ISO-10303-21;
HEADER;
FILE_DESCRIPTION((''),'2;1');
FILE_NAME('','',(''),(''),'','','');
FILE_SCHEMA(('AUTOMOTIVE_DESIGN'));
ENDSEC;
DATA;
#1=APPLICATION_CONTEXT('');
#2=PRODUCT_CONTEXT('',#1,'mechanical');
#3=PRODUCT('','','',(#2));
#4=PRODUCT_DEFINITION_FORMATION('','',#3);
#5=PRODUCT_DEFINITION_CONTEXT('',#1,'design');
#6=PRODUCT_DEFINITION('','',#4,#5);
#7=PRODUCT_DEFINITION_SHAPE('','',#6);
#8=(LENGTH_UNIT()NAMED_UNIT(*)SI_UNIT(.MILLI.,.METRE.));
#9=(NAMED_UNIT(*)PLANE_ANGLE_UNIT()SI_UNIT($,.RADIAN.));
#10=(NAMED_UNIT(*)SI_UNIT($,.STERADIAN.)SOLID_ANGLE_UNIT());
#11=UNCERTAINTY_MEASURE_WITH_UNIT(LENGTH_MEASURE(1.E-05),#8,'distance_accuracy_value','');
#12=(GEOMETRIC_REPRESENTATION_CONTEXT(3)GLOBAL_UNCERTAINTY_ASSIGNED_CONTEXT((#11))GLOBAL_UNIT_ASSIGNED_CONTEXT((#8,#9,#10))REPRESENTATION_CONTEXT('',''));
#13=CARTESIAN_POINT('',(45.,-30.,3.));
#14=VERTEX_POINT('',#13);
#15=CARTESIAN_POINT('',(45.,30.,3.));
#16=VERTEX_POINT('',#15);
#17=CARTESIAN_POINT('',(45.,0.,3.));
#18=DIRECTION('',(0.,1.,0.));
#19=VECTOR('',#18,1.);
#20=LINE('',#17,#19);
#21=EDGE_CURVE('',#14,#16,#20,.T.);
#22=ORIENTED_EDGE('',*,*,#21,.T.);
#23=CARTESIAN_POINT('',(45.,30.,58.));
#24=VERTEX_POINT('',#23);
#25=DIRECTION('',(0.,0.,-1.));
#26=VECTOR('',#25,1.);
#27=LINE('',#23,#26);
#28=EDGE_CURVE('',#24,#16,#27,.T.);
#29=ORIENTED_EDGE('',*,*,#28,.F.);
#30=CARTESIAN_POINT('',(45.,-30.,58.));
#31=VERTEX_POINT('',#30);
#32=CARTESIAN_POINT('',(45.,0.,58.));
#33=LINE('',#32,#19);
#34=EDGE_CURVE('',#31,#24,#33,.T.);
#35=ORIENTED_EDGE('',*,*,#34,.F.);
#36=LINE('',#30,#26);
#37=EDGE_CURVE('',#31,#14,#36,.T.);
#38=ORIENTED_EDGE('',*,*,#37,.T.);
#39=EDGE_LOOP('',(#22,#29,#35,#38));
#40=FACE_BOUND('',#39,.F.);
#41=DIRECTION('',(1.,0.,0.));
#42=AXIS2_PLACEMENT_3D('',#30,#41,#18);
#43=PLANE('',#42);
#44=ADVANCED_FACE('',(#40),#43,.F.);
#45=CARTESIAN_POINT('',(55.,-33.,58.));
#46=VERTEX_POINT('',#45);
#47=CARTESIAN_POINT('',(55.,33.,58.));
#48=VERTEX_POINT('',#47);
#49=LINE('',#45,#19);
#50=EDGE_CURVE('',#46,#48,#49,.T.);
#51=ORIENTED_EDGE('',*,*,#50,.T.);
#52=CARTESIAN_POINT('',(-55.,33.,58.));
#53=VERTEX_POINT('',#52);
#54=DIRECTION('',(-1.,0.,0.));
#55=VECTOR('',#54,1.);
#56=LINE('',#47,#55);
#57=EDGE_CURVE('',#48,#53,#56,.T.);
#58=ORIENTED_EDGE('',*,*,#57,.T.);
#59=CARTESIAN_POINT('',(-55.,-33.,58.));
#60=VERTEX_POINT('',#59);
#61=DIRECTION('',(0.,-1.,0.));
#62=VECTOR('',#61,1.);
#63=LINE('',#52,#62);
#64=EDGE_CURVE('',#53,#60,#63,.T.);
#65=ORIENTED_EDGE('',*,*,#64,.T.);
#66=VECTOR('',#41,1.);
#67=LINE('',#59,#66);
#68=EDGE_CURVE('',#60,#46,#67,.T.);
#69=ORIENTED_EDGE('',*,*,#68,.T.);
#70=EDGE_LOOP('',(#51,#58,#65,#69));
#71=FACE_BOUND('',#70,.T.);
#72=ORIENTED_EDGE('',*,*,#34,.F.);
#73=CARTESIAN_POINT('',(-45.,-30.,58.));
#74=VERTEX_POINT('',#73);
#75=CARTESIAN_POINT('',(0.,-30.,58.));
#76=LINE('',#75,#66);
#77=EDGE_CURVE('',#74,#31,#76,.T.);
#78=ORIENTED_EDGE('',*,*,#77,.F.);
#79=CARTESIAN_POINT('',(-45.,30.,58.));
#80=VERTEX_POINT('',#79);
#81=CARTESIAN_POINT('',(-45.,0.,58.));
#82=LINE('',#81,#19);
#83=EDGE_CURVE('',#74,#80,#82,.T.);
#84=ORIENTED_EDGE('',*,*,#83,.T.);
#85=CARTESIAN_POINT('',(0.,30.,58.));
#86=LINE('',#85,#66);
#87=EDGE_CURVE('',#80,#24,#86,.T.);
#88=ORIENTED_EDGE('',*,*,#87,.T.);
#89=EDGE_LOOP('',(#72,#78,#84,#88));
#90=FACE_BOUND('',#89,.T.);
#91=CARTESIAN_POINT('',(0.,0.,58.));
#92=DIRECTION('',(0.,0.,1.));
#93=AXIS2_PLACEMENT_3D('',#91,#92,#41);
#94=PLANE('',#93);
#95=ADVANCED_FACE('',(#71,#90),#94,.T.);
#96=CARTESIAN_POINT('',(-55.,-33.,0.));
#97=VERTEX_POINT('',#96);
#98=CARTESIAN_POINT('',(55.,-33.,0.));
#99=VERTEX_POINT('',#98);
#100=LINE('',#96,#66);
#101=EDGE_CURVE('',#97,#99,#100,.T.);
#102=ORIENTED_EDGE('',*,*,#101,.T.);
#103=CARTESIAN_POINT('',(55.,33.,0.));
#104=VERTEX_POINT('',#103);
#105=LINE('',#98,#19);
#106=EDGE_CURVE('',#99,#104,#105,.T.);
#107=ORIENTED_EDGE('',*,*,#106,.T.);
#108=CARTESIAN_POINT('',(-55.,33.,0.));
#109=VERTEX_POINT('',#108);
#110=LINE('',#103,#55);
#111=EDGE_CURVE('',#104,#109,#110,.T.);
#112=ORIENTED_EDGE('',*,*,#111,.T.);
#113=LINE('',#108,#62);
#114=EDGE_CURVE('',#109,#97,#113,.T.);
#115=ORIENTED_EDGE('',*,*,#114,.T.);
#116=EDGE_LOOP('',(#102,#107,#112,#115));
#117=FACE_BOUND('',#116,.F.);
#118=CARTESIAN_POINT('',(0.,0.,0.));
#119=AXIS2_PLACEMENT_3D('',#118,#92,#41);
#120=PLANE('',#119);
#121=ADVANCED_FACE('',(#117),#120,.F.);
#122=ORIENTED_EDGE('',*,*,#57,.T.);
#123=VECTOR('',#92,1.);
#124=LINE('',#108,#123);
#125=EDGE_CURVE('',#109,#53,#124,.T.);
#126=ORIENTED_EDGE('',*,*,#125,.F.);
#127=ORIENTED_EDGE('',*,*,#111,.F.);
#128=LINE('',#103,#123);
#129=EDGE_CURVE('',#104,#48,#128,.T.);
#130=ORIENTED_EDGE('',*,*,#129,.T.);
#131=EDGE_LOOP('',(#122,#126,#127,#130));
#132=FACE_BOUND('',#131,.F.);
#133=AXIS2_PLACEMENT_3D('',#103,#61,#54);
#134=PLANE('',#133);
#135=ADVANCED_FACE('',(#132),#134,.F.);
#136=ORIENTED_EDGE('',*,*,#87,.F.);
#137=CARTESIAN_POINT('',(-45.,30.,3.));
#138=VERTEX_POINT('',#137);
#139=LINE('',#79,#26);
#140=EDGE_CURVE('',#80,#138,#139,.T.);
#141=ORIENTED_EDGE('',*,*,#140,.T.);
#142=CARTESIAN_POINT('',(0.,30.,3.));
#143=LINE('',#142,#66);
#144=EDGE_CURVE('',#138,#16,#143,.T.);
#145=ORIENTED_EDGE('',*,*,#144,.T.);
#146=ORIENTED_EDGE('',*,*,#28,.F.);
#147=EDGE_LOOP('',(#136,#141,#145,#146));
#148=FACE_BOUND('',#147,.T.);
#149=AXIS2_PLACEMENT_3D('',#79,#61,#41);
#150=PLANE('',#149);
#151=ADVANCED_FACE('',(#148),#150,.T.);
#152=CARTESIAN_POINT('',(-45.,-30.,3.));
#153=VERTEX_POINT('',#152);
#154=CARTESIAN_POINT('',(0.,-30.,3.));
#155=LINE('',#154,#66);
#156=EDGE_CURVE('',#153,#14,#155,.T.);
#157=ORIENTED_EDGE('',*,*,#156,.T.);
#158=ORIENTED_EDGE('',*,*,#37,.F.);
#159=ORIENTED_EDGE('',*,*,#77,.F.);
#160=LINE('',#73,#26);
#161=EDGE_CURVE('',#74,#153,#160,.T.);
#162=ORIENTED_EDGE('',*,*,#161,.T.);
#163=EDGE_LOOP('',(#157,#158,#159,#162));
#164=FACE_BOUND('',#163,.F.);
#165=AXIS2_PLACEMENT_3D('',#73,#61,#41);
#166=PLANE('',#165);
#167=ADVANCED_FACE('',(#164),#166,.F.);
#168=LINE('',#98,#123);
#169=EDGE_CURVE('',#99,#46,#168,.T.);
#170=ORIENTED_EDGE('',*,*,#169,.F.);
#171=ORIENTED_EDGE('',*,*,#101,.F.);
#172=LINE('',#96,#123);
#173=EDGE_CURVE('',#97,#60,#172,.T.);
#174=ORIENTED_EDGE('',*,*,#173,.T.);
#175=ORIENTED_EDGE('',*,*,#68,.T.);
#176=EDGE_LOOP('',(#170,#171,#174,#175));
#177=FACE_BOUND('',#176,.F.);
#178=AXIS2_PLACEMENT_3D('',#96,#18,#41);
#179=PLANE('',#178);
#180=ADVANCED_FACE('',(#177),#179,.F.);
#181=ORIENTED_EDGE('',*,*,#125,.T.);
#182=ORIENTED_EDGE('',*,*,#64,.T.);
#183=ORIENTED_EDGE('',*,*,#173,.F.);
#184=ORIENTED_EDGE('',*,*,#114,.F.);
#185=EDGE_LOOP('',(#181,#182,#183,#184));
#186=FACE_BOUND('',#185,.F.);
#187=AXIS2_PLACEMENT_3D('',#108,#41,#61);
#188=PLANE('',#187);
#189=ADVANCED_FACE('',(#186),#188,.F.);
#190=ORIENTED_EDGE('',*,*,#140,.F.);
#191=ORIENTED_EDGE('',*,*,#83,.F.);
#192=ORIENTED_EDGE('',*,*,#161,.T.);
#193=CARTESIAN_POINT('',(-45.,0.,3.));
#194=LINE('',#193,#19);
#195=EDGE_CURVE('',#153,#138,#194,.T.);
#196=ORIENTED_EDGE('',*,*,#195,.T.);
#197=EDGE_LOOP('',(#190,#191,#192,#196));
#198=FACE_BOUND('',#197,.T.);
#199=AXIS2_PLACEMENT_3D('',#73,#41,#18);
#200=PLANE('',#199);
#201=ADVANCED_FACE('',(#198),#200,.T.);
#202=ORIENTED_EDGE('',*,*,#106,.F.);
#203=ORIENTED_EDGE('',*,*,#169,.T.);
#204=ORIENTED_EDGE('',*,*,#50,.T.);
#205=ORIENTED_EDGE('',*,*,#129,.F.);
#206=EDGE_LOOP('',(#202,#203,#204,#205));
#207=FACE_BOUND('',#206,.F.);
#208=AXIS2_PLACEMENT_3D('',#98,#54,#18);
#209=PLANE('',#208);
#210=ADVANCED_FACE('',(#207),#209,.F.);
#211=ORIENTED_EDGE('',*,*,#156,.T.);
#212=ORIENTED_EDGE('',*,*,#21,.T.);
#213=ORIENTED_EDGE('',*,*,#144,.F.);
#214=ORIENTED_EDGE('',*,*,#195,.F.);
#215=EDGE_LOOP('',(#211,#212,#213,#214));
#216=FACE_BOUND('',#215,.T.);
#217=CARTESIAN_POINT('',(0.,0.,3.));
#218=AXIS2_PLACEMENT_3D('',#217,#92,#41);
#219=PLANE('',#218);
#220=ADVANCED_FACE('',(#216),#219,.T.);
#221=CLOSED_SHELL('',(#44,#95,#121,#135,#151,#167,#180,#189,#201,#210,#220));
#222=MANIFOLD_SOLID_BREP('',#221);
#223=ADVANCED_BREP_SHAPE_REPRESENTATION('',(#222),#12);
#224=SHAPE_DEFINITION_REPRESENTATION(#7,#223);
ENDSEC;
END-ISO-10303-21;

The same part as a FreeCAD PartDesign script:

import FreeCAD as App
import Part
import Sketcher

V = App.Vector
Q = App.Units.Quantity


def add_polygon(sketch, points):
    """Adds a closed chain of lines whose ends are joined by coincident constraints."""
    first, n = sketch.GeometryCount, len(points)
    for a, b in zip(points, points[1:] + points[:1]):
        sketch.addGeometry(Part.LineSegment(App.Vector(*a, 0), App.Vector(*b, 0)), False)
    for i in range(n):
        sketch.addConstraint(Sketcher.Constraint("Coincident", first + i, 2, first + (i + 1) % n, 1))

doc = App.newDocument("Part")
body = doc.addObject("PartDesign::Body", "Body")

# Sketch on XY plane
sketch1 = body.newObject("Sketcher::SketchObject", "Sketch")
sketch1.AttachmentSupport = (doc.getObject("XY_Plane"), [""])
sketch1.MapMode = "FlatFace"
add_polygon(sketch1, [(55, 33), (-55, 33), (-55, -33), (55, -33)])  # lines 0-3
sketch1.addConstraint([
    Sketcher.Constraint("Horizontal", 0),
    Sketcher.Constraint("Vertical", 1),
    Sketcher.Constraint("Horizontal", 2),
    Sketcher.Constraint("Vertical", 3),
    Sketcher.Constraint("Symmetric", 0, 2, 2, 2, -1, 1),
    Sketcher.Constraint("DistanceX", 0, 2, 0, 1, Q("110 mm")),
    Sketcher.Constraint("DistanceY", 1, 2, 1, 1, Q("66 mm")),
])
pad1 = body.newObject("PartDesign::Pad", "Pad")
pad1.Profile = sketch1
pad1.Length = 58

# Sketch on XY plane
sketch2 = body.newObject("Sketcher::SketchObject", "Sketch001")
sketch2.AttachmentSupport = (doc.getObject("XY_Plane"), [""])
sketch2.MapMode = "FlatFace"
sketch2.AttachmentOffset = App.Placement(V(0, 0, 58), App.Rotation())
add_polygon(sketch2, [(-45, 30), (-45, -30), (45, -30), (45, 30)])  # lines 0-3
sketch2.addConstraint([
    Sketcher.Constraint("Vertical", 0),
    Sketcher.Constraint("Horizontal", 1),
    Sketcher.Constraint("Vertical", 2),
    Sketcher.Constraint("Horizontal", 3),
    Sketcher.Constraint("Symmetric", 0, 2, 2, 2, -1, 1),
    Sketcher.Constraint("DistanceX", 1, 1, 1, 2, Q("90 mm")),
    Sketcher.Constraint("DistanceY", 0, 2, 0, 1, Q("60 mm")),
])
pad2 = body.newObject("PartDesign::Pad", "Pad001")
pad2.Profile = sketch2
pad2.Length = 55
pad2.Reversed = True

# Sketch on XY plane
sketch3 = body.newObject("Sketcher::SketchObject", "Sketch002")
sketch3.AttachmentSupport = (doc.getObject("XY_Plane"), [""])
sketch3.MapMode = "FlatFace"
sketch3.AttachmentOffset = App.Placement(V(0, 0, 58), App.Rotation())
add_polygon(sketch3, [(-45, 30), (-45, -30), (45, -30), (45, 30)])  # lines 0-3
sketch3.addConstraint([
    Sketcher.Constraint("Vertical", 0),
    Sketcher.Constraint("Horizontal", 1),
    Sketcher.Constraint("Vertical", 2),
    Sketcher.Constraint("Horizontal", 3),
    Sketcher.Constraint("Symmetric", 0, 2, 2, 2, -1, 1),
    Sketcher.Constraint("DistanceX", 1, 1, 1, 2, Q("90 mm")),
    Sketcher.Constraint("DistanceY", 0, 2, 0, 1, Q("60 mm")),
])
pocket1 = body.newObject("PartDesign::Pocket", "Pocket")
pocket1.Profile = sketch3
pocket1.Length = 55

doc.recompute()
